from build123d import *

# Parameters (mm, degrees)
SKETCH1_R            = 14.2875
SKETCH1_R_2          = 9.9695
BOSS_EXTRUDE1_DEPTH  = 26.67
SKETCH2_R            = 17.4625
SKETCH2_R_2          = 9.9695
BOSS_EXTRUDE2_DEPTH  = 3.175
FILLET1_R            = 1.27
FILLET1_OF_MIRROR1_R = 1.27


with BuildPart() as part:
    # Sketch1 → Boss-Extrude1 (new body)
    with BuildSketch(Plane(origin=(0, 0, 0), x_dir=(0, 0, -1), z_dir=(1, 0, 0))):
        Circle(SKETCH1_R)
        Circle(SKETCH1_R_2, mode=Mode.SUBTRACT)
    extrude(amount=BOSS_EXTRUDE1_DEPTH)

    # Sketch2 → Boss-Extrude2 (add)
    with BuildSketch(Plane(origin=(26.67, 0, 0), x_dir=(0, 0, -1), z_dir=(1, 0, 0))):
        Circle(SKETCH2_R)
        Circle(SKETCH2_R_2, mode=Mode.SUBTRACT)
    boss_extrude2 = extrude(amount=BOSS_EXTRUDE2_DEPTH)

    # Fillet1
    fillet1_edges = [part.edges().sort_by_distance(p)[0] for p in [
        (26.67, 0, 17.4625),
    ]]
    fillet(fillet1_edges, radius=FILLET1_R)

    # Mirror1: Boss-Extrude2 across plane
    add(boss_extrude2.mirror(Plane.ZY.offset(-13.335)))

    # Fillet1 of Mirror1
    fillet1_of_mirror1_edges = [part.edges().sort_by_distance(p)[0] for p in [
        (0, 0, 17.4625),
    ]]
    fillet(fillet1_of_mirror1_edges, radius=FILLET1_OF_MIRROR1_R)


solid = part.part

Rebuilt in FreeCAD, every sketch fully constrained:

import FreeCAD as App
import Part
import Sketcher

V = App.Vector
Q = App.Units.Quantity


def edges_at(feature, points):
    """Names of the edges that pass closest to the given points."""
    edges = feature.Shape.Edges
    near = lambda p: min(range(len(edges)), key=lambda i: edges[i].distToShape(Part.Vertex(*p))[0])
    return sorted({f"Edge{near(p) + 1}" for p in points})

doc = App.newDocument("Part")
body = doc.addObject("PartDesign::Body", "Body")

sketch1 = body.newObject("Sketcher::SketchObject", "Sketch")
sketch1.AttachmentSupport = (doc.getObject("YZ_Plane"), [""])
sketch1.MapMode = "FlatFace"
sketch1.addGeometry([
    Part.Circle(V(0, 0, 0), V(0, 0, 1), 14),
    Part.Circle(V(0, 0, 0), V(0, 0, 1), 10),
], False)
sketch1.addConstraint([
    Sketcher.Constraint("Coincident", 0, 3, -1, 1),
    Sketcher.Constraint("Coincident", 1, 3, -1, 1),
    Sketcher.Constraint("Diameter", 0, Q("1.125 in")),
    Sketcher.Constraint("Diameter", 1, Q("0.785 in")),
])
pad1 = body.newObject("PartDesign::Pad", "Pad")
pad1.Profile = sketch1
pad1.Length = Q("1.05 in")

sketch2 = body.newObject("Sketcher::SketchObject", "Sketch001")
sketch2.AttachmentSupport = (doc.getObject("YZ_Plane"), [""])
sketch2.MapMode = "FlatFace"
sketch2.AttachmentOffset = App.Placement(V(0, 0, 1.05 * 25.4), App.Rotation())
sketch2.addGeometry([
    Part.Circle(V(0, 0, 0), V(0, 0, 1), 17),
    Part.Circle(V(0, 0, 0), V(0, 0, 1), 10),
], False)
sketch2.addConstraint([
    Sketcher.Constraint("Coincident", 0, 3, -1, 1),
    Sketcher.Constraint("Coincident", 1, 3, -1, 1),
    Sketcher.Constraint("Diameter", 0, Q("1.375 in")),
    Sketcher.Constraint("Diameter", 1, Q("0.785 in")),
])
pad2 = body.newObject("PartDesign::Pad", "Pad001")
pad2.Profile = sketch2
pad2.Length = Q("0.125 in")
doc.recompute()

fillet = body.newObject("PartDesign::Fillet", "Fillet")
fillet.Base = (pad2, edges_at(pad2, [(26.67, 0, 17.462)]))
fillet.Radius = Q("0.05 in")
doc.recompute()

datumplane = body.newObject("PartDesign::Plane", "DatumPlane")
datumplane.AttachmentSupport = (doc.getObject("YZ_Plane"), [""])
datumplane.MapMode = "FlatFace"
datumplane.AttachmentOffset = App.Placement(V(0, 0, 0.525 * 25.4), App.Rotation())
mirrored = body.newObject("PartDesign::Mirrored", "Mirrored")
mirrored.Originals = [pad2]
mirrored.MirrorPlane = (datumplane, [""])
body.Tip = mirrored
doc.recompute()

fillet2 = body.newObject("PartDesign::Fillet", "Fillet001")
fillet2.Base = (mirrored, edges_at(mirrored, [(0, 0, 17.462)]))
fillet2.Radius = Q("0.05 in")

doc.recompute()
